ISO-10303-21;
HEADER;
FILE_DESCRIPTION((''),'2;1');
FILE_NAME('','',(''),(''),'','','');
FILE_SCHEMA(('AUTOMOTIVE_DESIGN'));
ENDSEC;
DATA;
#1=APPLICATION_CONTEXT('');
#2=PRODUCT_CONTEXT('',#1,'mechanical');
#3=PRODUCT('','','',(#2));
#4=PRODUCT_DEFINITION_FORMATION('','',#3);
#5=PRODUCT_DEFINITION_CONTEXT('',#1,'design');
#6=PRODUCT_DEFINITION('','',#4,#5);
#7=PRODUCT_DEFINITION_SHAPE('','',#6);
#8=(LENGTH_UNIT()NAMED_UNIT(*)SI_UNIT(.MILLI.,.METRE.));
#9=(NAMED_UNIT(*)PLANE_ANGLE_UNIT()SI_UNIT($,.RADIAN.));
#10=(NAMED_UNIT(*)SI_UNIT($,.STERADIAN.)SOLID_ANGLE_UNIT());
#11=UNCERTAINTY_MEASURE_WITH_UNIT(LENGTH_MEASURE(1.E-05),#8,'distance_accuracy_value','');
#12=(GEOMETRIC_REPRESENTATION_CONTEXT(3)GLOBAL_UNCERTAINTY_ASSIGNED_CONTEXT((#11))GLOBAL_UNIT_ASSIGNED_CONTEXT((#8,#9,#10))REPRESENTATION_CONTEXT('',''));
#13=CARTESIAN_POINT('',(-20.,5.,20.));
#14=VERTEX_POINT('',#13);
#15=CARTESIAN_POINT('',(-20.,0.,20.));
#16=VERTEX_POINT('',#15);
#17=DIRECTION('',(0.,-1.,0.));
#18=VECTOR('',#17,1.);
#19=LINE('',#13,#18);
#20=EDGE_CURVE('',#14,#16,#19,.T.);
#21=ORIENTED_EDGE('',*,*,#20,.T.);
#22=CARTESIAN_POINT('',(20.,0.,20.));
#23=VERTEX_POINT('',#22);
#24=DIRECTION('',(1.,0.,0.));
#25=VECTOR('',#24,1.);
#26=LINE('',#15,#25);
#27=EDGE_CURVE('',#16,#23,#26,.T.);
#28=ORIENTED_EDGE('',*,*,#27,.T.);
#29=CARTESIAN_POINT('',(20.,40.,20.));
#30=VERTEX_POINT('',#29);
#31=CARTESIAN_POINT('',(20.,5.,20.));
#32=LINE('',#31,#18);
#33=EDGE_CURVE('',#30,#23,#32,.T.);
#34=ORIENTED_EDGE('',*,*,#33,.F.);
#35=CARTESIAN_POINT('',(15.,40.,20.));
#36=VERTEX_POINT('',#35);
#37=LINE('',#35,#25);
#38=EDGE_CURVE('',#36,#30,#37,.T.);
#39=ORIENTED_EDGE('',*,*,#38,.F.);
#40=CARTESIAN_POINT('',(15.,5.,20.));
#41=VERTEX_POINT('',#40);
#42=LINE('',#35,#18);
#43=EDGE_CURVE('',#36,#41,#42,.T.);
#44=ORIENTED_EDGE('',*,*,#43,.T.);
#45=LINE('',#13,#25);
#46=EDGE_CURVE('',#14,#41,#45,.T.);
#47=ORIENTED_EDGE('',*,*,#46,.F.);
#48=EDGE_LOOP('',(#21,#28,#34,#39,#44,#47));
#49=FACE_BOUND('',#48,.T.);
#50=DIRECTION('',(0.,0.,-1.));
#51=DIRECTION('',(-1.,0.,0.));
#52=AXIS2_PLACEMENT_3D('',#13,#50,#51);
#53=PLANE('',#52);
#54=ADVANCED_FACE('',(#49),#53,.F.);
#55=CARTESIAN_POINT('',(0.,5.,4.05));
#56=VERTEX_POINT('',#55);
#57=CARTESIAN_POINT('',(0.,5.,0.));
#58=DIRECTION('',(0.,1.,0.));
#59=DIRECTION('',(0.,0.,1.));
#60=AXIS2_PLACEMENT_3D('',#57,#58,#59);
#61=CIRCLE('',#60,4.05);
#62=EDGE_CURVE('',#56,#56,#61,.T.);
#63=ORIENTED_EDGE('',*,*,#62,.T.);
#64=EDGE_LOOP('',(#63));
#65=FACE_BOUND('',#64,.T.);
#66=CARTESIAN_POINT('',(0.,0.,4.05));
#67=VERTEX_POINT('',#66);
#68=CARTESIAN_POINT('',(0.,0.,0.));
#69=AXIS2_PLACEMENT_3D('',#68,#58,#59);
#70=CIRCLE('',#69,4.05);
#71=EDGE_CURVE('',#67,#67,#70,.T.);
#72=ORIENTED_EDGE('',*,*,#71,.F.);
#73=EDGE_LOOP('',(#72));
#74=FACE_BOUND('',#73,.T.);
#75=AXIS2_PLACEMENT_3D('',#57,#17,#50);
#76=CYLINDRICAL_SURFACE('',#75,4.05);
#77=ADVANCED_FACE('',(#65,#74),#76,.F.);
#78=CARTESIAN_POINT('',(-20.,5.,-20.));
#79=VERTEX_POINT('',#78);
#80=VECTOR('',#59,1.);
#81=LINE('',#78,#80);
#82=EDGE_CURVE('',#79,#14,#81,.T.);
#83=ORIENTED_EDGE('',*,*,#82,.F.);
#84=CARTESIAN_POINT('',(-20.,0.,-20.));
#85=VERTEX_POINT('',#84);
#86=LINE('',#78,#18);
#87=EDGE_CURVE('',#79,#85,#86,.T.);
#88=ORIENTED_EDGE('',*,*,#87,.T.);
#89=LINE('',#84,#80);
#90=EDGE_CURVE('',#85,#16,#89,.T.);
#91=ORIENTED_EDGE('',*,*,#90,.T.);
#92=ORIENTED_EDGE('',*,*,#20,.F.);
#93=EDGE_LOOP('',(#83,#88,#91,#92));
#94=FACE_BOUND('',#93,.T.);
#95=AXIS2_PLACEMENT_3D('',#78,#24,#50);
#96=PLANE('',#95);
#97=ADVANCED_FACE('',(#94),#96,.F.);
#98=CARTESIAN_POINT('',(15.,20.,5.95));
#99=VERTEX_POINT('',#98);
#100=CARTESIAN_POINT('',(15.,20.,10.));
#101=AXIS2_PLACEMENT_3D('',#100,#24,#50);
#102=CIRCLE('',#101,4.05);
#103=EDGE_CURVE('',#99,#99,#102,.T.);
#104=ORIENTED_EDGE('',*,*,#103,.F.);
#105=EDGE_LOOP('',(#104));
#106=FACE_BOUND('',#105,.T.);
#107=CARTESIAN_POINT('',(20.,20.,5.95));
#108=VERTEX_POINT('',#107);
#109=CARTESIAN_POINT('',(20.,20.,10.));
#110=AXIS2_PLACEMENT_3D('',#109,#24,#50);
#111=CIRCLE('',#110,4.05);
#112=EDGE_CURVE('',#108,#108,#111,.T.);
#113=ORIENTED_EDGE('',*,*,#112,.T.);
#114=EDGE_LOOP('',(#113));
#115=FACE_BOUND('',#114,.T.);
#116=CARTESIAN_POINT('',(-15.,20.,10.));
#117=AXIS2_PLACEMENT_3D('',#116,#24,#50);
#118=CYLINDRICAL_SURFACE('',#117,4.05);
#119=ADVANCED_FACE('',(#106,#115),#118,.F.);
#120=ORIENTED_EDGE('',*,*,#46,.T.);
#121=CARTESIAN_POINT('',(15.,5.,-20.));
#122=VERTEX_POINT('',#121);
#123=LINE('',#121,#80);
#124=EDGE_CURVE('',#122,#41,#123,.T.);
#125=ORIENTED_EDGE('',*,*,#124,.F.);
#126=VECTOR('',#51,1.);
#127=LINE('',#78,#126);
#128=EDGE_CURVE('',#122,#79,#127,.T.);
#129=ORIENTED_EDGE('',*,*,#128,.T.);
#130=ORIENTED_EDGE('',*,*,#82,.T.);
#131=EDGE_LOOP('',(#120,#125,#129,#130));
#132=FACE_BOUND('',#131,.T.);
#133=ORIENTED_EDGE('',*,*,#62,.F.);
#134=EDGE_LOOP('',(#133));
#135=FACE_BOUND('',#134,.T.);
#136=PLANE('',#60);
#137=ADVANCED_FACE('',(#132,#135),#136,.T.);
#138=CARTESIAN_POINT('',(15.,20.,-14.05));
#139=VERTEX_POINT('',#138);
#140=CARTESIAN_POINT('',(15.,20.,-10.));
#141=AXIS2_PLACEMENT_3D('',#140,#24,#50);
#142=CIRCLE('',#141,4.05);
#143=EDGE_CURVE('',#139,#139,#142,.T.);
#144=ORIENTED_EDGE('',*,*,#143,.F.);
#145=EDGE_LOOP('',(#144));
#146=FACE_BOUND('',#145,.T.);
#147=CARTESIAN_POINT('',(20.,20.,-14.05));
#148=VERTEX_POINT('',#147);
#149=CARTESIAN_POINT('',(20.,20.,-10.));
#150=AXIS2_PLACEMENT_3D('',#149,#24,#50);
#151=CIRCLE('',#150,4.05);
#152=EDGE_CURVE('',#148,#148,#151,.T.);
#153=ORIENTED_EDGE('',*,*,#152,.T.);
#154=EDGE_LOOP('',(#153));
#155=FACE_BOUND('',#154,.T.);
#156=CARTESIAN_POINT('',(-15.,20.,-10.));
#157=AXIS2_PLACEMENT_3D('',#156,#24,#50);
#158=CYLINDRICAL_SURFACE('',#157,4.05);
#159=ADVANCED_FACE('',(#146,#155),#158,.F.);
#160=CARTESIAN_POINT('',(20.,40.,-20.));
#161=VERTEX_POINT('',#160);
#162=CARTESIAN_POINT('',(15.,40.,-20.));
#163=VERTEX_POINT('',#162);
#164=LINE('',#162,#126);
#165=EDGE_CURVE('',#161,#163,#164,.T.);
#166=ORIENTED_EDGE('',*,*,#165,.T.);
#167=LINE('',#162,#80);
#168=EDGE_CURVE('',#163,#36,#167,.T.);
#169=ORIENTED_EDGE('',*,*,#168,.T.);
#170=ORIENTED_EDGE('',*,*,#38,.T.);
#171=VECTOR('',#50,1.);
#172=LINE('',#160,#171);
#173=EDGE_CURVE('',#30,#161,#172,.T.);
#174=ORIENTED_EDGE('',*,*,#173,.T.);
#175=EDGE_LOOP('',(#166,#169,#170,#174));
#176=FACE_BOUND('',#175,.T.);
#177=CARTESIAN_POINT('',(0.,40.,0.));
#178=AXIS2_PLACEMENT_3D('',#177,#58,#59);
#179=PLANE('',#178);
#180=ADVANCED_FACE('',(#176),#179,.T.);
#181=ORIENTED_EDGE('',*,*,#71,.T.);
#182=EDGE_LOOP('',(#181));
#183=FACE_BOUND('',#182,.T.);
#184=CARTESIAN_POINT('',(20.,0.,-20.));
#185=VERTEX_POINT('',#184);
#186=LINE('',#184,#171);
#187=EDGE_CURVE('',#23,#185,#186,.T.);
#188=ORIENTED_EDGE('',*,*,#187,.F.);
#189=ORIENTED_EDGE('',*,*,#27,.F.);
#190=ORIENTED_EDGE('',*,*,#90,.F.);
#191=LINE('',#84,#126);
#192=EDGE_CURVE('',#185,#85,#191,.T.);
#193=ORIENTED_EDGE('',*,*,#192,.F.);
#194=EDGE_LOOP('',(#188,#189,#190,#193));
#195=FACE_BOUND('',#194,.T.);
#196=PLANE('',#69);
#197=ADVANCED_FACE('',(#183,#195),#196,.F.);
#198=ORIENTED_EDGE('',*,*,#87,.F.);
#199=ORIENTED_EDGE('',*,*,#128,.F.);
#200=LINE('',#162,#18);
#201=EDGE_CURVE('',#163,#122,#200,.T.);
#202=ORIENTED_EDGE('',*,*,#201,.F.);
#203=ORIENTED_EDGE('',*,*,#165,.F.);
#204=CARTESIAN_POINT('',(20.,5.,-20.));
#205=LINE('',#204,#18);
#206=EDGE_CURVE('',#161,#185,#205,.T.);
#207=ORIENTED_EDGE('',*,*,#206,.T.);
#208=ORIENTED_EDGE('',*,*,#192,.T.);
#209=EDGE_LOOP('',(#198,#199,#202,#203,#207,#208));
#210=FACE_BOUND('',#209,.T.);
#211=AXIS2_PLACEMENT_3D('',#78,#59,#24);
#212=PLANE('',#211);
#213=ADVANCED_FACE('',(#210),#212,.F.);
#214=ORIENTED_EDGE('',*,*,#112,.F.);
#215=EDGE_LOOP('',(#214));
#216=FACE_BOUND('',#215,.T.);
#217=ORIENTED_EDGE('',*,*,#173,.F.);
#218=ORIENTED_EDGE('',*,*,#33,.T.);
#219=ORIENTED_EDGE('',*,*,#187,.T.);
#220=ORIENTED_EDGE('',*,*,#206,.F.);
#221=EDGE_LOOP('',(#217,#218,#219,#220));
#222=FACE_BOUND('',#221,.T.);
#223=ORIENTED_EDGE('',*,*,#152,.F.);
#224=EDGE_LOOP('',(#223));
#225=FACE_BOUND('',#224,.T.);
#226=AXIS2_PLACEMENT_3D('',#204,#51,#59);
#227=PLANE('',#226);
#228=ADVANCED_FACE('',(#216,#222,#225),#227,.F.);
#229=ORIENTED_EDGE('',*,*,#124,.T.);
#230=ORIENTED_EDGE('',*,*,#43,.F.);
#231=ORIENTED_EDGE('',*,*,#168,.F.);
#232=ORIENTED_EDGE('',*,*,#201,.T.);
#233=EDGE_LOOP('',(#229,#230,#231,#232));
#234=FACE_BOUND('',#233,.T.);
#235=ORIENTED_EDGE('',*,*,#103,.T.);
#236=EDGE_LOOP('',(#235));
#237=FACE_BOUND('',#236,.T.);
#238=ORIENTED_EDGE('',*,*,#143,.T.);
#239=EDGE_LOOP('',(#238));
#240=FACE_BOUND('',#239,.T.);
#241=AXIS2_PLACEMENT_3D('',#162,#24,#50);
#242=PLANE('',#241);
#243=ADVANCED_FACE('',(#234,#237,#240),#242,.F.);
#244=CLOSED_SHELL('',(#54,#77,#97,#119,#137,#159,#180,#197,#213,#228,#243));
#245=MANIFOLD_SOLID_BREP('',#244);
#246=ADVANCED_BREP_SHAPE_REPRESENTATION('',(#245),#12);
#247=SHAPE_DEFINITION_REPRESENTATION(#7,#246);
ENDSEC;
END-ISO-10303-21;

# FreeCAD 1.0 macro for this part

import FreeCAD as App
import Part
import Sketcher
Q = App.Units.Quantity


def add_polygon(sketch, points):
    """Adds a closed chain of lines whose ends are joined by coincident constraints."""
    first, n = sketch.GeometryCount, len(points)
    for a, b in zip(points, points[1:] + points[:1]):
        sketch.addGeometry(Part.LineSegment(App.Vector(*a, 0), App.Vector(*b, 0)), False)
    for i in range(n):
        sketch.addConstraint(Sketcher.Constraint("Coincident", first + i, 2, first + (i + 1) % n, 1))

doc = App.newDocument("Part")
body = doc.addObject("PartDesign::Body", "Body")

sketch1 = doc.addObject("Sketcher::SketchObject", "Sketch")
body.addObject(sketch1)
sketch1.AttachmentSupport = (doc.XZ_Plane, [""])
sketch1.MapMode = "FlatFace"
add_polygon(sketch1, [(-20, -20), (-20, 20), (20, 20), (20, -20)])
sketch1.addGeometry(Part.Circle(App.Vector(0, 0, 0), App.Vector(0, 0, 1), 4.05), False)
sketch1.addConstraint([
    Sketcher.Constraint("Vertical", 0),
    Sketcher.Constraint("Horizontal", 1),
    Sketcher.Constraint("Vertical", 2),
    Sketcher.Constraint("Horizontal", 3),
    Sketcher.Constraint("Coincident", 4, 3, -1, 1),
    Sketcher.Constraint("Symmetric", 0, 2, 2, 2, -1, 1),
    Sketcher.Constraint("Equal", 3, 0),
    Sketcher.Constraint("Diameter", 4, Q("8.1 mm")),
    Sketcher.Constraint("DistanceX", 1, 1, 1, 2, Q("40 mm")),
])
pad1 = doc.addObject("PartDesign::Pad", "Pad")
body.addObject(pad1)
pad1.Profile = sketch1
pad1.Length = 5
pad1.Reversed = True

sketch2 = doc.addObject("Sketcher::SketchObject", "Sketch001")
body.addObject(sketch2)
sketch2.AttachmentSupport = (doc.XZ_Plane, [""])
sketch2.MapMode = "FlatFace"
sketch2.AttachmentOffset = App.Placement(App.Vector(0, 0, -5), App.Rotation())
add_polygon(sketch2, [(15, -20), (15, 20), (20, 20), (20, -20)])
sketch2.addConstraint([
    Sketcher.Constraint("Vertical", 0),
    Sketcher.Constraint("Horizontal", 1),
    Sketcher.Constraint("Vertical", 2),
    Sketcher.Constraint("Horizontal", 3),
    Sketcher.Constraint("DistanceX", 1, 1, 1, 2, Q("5 mm")),
    Sketcher.Constraint("DistanceY", 0, 1, 0, 2, Q("40 mm")),
    Sketcher.Constraint("DistanceX", -1, 1, 0, 2, Q("15 mm")),
    Sketcher.Constraint("DistanceY", -1, 1, 0, 2, Q("20 mm")),
])
pad2 = doc.addObject("PartDesign::Pad", "Pad001")
body.addObject(pad2)
pad2.Profile = sketch2
pad2.Length = 35
pad2.Reversed = True

sketch3 = doc.addObject("Sketcher::SketchObject", "Sketch002")
body.addObject(sketch3)
sketch3.AttachmentSupport = (doc.YZ_Plane, [""])
sketch3.MapMode = "FlatFace"
sketch3.AttachmentOffset = App.Placement(App.Vector(0, 0, 20), App.Rotation())
sketch3.addGeometry([
    Part.Circle(App.Vector(20, 10, 0), App.Vector(0, 0, 1), 4.05),
    Part.Circle(App.Vector(20, -10, 0), App.Vector(0, 0, 1), 4.05),
], False)
sketch3.addConstraint([
    Sketcher.Constraint("Equal", 0, 1),
    Sketcher.Constraint("Symmetric", 0, 3, 1, 3, -1),
    Sketcher.Constraint("Diameter", 0, Q("8.1 mm")),
    Sketcher.Constraint("DistanceX", -1, 1, 0, 3, Q("20 mm")),
    Sketcher.Constraint("DistanceY", -1, 1, 0, 3, Q("10 mm")),
])
pocket1 = doc.addObject("PartDesign::Pocket", "Pocket")
body.addObject(pocket1)
pocket1.Profile = sketch3
pocket1.Length = 35

doc.recompute()
